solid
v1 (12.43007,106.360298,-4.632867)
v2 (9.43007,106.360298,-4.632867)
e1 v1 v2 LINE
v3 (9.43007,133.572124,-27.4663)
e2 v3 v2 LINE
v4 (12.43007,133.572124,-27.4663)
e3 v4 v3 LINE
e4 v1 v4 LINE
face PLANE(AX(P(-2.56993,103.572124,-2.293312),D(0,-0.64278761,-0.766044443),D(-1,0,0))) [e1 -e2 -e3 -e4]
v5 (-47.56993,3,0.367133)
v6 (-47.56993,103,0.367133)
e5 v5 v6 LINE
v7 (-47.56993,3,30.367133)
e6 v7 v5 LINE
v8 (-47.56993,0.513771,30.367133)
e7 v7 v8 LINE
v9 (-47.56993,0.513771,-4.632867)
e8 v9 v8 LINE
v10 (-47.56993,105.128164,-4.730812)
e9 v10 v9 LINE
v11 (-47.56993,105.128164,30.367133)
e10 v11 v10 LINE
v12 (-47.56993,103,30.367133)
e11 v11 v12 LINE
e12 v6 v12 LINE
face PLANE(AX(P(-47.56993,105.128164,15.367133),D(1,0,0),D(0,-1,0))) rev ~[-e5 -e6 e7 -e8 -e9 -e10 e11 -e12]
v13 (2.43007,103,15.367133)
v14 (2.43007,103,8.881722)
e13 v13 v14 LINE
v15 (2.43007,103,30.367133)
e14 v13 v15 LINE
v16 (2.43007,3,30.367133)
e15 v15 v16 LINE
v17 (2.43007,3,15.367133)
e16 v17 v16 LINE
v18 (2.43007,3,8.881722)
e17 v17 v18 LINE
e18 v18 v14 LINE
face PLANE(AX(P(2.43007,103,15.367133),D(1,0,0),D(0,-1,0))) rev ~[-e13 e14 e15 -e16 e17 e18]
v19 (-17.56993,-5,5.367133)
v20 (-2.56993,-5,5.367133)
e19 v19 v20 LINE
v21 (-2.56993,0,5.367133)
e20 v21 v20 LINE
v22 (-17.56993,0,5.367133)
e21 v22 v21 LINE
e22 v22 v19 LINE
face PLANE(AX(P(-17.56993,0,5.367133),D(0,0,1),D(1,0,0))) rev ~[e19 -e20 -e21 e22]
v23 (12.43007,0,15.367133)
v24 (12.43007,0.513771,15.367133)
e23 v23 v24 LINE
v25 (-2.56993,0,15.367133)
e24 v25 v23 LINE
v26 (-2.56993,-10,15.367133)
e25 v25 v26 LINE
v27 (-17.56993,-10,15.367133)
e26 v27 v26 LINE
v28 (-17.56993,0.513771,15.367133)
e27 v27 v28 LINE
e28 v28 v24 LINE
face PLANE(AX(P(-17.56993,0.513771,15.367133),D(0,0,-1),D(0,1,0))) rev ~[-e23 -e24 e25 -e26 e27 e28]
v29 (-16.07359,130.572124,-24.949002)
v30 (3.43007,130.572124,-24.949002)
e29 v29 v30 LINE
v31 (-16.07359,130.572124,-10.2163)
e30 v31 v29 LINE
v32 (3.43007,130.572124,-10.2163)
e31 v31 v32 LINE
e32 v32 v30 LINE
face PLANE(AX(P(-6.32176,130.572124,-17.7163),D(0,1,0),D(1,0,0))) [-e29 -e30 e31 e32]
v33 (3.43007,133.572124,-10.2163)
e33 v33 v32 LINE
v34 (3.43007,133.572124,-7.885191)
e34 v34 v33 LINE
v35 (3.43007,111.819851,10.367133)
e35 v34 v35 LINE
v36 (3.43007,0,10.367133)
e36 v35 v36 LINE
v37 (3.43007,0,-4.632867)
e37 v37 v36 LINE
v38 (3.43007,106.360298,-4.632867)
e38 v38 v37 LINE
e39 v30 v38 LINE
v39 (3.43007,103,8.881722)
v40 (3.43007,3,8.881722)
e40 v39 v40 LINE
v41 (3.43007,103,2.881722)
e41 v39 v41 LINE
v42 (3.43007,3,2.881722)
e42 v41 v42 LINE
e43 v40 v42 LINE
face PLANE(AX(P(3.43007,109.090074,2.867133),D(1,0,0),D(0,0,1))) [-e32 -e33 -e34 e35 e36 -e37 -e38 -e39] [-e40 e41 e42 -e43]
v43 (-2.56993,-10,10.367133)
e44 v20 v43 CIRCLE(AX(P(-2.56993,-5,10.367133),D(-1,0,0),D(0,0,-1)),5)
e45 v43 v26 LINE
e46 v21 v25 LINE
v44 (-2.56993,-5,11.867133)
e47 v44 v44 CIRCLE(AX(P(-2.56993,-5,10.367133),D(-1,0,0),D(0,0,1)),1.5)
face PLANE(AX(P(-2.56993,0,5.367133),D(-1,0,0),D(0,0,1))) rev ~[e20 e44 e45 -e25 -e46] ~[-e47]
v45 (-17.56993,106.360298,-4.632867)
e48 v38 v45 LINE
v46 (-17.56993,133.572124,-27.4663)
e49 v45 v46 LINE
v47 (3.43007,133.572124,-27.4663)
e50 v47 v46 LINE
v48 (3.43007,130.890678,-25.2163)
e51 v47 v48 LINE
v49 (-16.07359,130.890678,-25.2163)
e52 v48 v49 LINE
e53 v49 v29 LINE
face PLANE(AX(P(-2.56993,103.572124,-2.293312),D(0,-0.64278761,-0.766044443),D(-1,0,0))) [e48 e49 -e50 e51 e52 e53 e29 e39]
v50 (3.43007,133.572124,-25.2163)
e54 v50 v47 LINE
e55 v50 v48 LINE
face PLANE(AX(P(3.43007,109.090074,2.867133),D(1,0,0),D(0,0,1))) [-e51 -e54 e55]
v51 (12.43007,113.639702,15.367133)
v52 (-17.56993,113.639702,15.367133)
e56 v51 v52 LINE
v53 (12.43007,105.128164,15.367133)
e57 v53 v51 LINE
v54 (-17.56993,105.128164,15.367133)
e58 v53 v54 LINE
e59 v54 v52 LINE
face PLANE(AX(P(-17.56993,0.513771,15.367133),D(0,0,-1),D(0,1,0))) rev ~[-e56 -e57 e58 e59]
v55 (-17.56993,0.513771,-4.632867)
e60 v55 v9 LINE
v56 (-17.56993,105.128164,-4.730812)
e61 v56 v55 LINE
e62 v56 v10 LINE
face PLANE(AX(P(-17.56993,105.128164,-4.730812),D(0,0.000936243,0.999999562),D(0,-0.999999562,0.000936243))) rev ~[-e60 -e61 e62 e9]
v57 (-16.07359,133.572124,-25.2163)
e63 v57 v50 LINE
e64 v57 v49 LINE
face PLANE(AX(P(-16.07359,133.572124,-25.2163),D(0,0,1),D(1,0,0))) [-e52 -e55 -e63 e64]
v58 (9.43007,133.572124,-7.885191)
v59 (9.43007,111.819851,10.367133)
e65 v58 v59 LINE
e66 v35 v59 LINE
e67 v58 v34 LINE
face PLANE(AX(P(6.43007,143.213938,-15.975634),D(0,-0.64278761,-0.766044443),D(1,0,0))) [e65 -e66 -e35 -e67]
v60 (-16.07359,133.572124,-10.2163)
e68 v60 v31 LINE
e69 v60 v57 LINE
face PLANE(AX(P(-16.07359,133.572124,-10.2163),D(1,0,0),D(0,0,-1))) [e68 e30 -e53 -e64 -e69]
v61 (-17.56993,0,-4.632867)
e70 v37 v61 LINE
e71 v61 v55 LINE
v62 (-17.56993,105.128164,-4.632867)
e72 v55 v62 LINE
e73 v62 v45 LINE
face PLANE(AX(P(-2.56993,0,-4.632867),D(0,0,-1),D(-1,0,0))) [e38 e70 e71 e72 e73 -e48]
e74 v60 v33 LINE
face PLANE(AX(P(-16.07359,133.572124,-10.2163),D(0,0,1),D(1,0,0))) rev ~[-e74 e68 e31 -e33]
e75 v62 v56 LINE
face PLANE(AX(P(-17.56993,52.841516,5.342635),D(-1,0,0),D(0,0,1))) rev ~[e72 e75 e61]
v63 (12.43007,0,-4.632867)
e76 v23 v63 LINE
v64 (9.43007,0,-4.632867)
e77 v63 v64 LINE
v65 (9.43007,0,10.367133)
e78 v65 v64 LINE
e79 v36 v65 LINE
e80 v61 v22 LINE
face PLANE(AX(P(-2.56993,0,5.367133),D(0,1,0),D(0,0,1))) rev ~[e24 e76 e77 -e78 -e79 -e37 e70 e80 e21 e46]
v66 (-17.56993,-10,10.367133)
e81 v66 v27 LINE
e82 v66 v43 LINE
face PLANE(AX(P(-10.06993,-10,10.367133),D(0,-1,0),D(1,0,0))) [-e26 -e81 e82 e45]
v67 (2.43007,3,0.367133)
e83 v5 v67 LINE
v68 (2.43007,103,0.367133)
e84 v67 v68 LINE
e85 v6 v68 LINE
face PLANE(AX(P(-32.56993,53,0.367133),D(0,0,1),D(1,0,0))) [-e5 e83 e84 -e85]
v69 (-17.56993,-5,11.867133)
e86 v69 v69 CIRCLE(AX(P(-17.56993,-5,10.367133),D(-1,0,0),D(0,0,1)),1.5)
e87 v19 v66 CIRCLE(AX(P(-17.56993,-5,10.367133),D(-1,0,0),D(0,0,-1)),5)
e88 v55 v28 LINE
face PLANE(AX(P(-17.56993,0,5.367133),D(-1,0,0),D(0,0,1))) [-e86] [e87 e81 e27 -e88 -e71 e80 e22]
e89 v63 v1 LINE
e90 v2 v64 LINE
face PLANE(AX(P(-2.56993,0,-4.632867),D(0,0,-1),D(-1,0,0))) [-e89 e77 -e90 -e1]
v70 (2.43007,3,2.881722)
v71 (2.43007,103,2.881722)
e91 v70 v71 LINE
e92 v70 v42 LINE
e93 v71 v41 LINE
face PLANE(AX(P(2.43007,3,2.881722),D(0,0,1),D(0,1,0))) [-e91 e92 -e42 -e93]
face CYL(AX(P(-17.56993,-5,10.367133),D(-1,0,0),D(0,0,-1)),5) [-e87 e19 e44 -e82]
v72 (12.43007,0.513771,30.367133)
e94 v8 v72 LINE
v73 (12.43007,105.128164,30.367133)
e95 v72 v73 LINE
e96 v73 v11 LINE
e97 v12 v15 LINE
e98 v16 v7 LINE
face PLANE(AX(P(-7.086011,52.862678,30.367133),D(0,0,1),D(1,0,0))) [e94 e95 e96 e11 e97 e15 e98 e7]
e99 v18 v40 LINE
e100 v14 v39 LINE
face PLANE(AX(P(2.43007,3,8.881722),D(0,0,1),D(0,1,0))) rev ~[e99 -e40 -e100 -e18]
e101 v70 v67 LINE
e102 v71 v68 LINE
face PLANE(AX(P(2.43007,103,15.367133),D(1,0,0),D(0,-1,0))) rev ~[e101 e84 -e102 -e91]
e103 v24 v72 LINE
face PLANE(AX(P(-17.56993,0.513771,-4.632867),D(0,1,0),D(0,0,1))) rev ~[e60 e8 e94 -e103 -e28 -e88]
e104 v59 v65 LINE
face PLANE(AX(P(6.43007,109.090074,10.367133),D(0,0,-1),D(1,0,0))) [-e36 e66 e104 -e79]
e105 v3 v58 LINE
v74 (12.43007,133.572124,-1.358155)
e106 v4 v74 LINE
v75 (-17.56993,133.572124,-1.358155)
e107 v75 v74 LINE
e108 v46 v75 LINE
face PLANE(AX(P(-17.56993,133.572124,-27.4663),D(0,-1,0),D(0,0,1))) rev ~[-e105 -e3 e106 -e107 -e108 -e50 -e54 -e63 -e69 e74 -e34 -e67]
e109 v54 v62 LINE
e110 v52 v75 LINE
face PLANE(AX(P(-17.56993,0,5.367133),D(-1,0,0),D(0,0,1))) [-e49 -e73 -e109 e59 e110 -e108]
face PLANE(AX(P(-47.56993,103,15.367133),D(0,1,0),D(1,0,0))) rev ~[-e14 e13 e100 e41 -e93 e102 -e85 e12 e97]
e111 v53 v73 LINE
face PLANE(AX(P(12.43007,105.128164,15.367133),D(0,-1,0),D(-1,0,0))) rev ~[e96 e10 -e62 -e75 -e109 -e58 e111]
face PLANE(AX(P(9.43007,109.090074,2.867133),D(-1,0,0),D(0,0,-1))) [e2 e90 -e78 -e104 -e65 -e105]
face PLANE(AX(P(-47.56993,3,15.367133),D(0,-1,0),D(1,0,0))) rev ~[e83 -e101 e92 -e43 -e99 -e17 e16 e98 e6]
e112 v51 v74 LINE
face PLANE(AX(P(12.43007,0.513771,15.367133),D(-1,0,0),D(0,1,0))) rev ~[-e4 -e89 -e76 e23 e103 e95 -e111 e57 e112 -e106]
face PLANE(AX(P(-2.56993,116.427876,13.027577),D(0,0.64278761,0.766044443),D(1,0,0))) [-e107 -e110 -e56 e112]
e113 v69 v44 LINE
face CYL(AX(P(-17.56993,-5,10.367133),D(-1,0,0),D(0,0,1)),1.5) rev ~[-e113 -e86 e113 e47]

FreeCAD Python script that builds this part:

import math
import FreeCAD as App
import Part
import Sketcher
Q = App.Units.Quantity


def add_polygon(sketch, points):
    """Adds a closed chain of lines whose ends are joined by coincident constraints."""
    first, n = sketch.GeometryCount, len(points)
    for a, b in zip(points, points[1:] + points[:1]):
        sketch.addGeometry(Part.LineSegment(App.Vector(*a, 0), App.Vector(*b, 0)), False)
    for i in range(n):
        sketch.addConstraint(Sketcher.Constraint("Coincident", first + i, 2, first + (i + 1) % n, 1))

doc = App.newDocument("Part")
body = doc.addObject("PartDesign::Body", "Body")

# Sketch on XZ plane
sketch1 = doc.addObject("Sketcher::SketchObject", "Sketch")
body.addObject(sketch1)
sketch1.AttachmentSupport = (doc.XZ_Plane, [""])
sketch1.MapMode = "FlatFace"
add_polygon(sketch1, [(-17.56993, -4.632867), (-17.56993, 15.367133), (12.43007, 15.367133), (12.43007, -4.632867)])  # lines 0-3
sketch1.addConstraint([
    Sketcher.Constraint("Vertical", 0),
    Sketcher.Constraint("Horizontal", 1),
    Sketcher.Constraint("Vertical", 2),
    Sketcher.Constraint("Horizontal", 3),
    Sketcher.Constraint("DistanceX", 1, 1, 1, 2, Q("30 mm")),
    Sketcher.Constraint("DistanceY", 0, 1, 0, 2, Q("20 mm")),
    Sketcher.Constraint("DistanceX", 0, 2, -1, 1, Q("17.56993 mm")),
    Sketcher.Constraint("DistanceY", -1, 1, 0, 2, Q("15.367133 mm")),
])

# Sketch on YZ plane
sketch2 = doc.addObject("Sketcher::SketchObject", "Sketch001")
body.addObject(sketch2)
sketch2.AttachmentSupport = (doc.YZ_Plane, [""])
sketch2.MapMode = "FlatFace"
sketch2.AttachmentOffset = App.Placement(App.Vector(0, 0, -2.57), App.Rotation())
sketch2.addGeometry([
    Part.LineSegment(App.Vector(0, 5.367133, 0), App.Vector(110, 5.367133, 0)),
    Part.LineSegment(App.Vector(110, 5.367133, 0), App.Vector(140, -19.805856, 0)),
], False)
sketch2.addConstraint([
    Sketcher.Constraint("Coincident", 0, 2, 1, 1),
    Sketcher.Constraint("Horizontal", 0),
    Sketcher.Constraint("PointOnObject", 0, 1, -2),
    Sketcher.Constraint("DistanceX", 0, 1, 0, 2, Q("110 mm")),
    Sketcher.Constraint("Angle", 1, Q("-40 deg")),
    Sketcher.Constraint("DistanceX", -1, 1, 1, 2, Q("140 mm")),
    Sketcher.Constraint("DistanceY", -1, 1, 0, 1, Q("5.367133 mm")),
])
doc.recompute()

additivepipe = doc.addObject("PartDesign::AdditivePipe", "AdditivePipe")
body.addObject(additivepipe)
additivepipe.Profile = sketch1
additivepipe.Spine = (sketch2, ["Edge1", "Edge2"])
additivepipe.Transition = "Right corner"

# Sketch on an angled plane
sketch3 = doc.addObject("Sketcher::SketchObject", "Sketch002")
body.addObject(sketch3)
sketch3.Placement = App.Placement(App.Vector(0, 91.907853, -77.119845), App.Rotation(App.Vector(1, 0, 0), App.Vector(0, -0.64278761, -0.766044443), App.Vector(0, 0.766044443, -0.64278761), "ZXY"))
add_polygon(sketch3, [(3.43007, -64.818099), (3.43007, -79.818099), (9.43007, -79.818099), (9.43007, -64.818099)])  # lines 0-3
sketch3.addConstraint([
    Sketcher.Constraint("Vertical", 0),
    Sketcher.Constraint("Horizontal", 1),
    Sketcher.Constraint("Vertical", 2),
    Sketcher.Constraint("Horizontal", 3),
    Sketcher.Constraint("DistanceX", 1, 1, 1, 2, Q("6 mm")),
    Sketcher.Constraint("DistanceY", 0, 2, 0, 1, Q("15 mm")),
    Sketcher.Constraint("DistanceY", 0, 2, -1, 1, Q("79.818099 mm")),
    Sketcher.Constraint("DistanceX", -1, 1, 0, 2, Q("3.43007 mm")),
])

# Sketch on YZ plane
sketch4 = doc.addObject("Sketcher::SketchObject", "Sketch003")
body.addObject(sketch4)
sketch4.AttachmentSupport = (doc.YZ_Plane, [""])
sketch4.MapMode = "FlatFace"
sketch4.AttachmentOffset = App.Placement(App.Vector(0, 0, 6.43007), App.Rotation())
sketch4.addGeometry([
    Part.LineSegment(App.Vector(138.393031, -21.720967, 0), App.Vector(109.090074, 2.867133, 0)),
    Part.LineSegment(App.Vector(109.090074, 2.867133, 0), App.Vector(0, 2.867133, 0)),
], False)
sketch4.addConstraint([
    Sketcher.Constraint("Coincident", 0, 2, 1, 1),
    Sketcher.Constraint("Horizontal", 1),
    Sketcher.Constraint("PointOnObject", 1, 2, -2),
    Sketcher.Constraint("Angle", 0, Q("140 deg")),
    Sketcher.Constraint("DistanceY", 0, 1, 0, 2, Q("24.5881 mm")),
    Sketcher.Constraint("DistanceX", 1, 2, 1, 1, Q("109.090074 mm")),
    Sketcher.Constraint("DistanceY", 0, 1, -1, 1, Q("21.720967 mm")),
])
doc.recompute()

subtractivepipe = doc.addObject("PartDesign::SubtractivePipe", "SubtractivePipe")
body.addObject(subtractivepipe)
subtractivepipe.Profile = sketch3
subtractivepipe.Spine = (sketch4, ["Edge1", "Edge2"])
subtractivepipe.Transition = "Right corner"

# Sketch on XY plane
sketch5 = doc.addObject("Sketcher::SketchObject", "Sketch004")
body.addObject(sketch5)
sketch5.AttachmentSupport = (doc.XY_Plane, [""])
sketch5.MapMode = "FlatFace"
sketch5.AttachmentOffset = App.Placement(App.Vector(0, 0, 15.367133), App.Rotation())
add_polygon(sketch5, [(-41.579192, 103), (-41.579192, 3), (2.43007, 3), (2.43007, 103)])  # lines 0-3
sketch5.addConstraint([
    Sketcher.Constraint("Vertical", 0),
    Sketcher.Constraint("Horizontal", 1),
    Sketcher.Constraint("Vertical", 2),
    Sketcher.Constraint("Horizontal", 3),
    Sketcher.Constraint("DistanceY", 0, 2, 0, 1, Q("100 mm")),
    Sketcher.Constraint("DistanceY", -1, 1, 0, 2, Q("3 mm")),
    Sketcher.Constraint("DistanceX", 1, 1, 1, 2, Q("44.009262 mm")),
    Sketcher.Constraint("DistanceX", -1, 1, 1, 2, Q("2.43007 mm")),
])
pocket1 = doc.addObject("PartDesign::Pocket", "Pocket")
body.addObject(pocket1)
pocket1.Profile = sketch5
pocket1.Length = 15

# Sketch on XZ plane
sketch6 = doc.addObject("Sketcher::SketchObject", "Sketch005")
body.addObject(sketch6)
sketch6.AttachmentSupport = (doc.XZ_Plane, [""])
sketch6.MapMode = "FlatFace"
add_polygon(sketch6, [(-17.56993, 15.367133), (-17.56993, 5.367133), (-2.56993, 5.367133), (-2.56993, 15.367133)])  # lines 0-3
sketch6.addConstraint([
    Sketcher.Constraint("Vertical", 0),
    Sketcher.Constraint("Horizontal", 1),
    Sketcher.Constraint("Vertical", 2),
    Sketcher.Constraint("Horizontal", 3),
    Sketcher.Constraint("DistanceX", 1, 1, 1, 2, Q("15 mm")),
    Sketcher.Constraint("DistanceY", 0, 2, 0, 1, Q("10 mm")),
    Sketcher.Constraint("DistanceX", 0, 2, -1, 1, Q("17.56993 mm")),
    Sketcher.Constraint("DistanceY", -1, 1, 0, 2, Q("5.367133 mm")),
])
pad1 = doc.addObject("PartDesign::Pad", "Pad")
body.addObject(pad1)
pad1.Profile = sketch6
pad1.Length = 10

# Sketch on YZ plane
sketch7 = doc.addObject("Sketcher::SketchObject", "Sketch006")
body.addObject(sketch7)
sketch7.AttachmentSupport = (doc.YZ_Plane, [""])
sketch7.MapMode = "FlatFace"
sketch7.AttachmentOffset = App.Placement(App.Vector(0, 0, -17.56993), App.Rotation())
sketch7.addGeometry([
    Part.LineSegment(App.Vector(-5, 5.367133, 0), App.Vector(-10, 5.367133, 0)),
    Part.LineSegment(App.Vector(-10, 5.367133, 0), App.Vector(-10, 10.367133, 0)),
    Part.ArcOfCircle(Part.Circle(App.Vector(-5, 10.367133, 0), App.Vector(0, 0, 1), 5), math.radians(180), math.radians(270)),
], False)
sketch7.addConstraint([
    Sketcher.Constraint("Coincident", 0, 2, 1, 1),
    Sketcher.Constraint("Tangent", 1, 2, 2, 1),
    Sketcher.Constraint("Tangent", 2, 2, 0, 1),
    Sketcher.Constraint("Horizontal", 0),
    Sketcher.Constraint("Vertical", 1),
    Sketcher.Constraint("Radius", 2, Q("5 mm")),
    Sketcher.Constraint("DistanceX", 2, 3, -1, 1, Q("5 mm")),
    Sketcher.Constraint("DistanceY", -1, 1, 2, 3, Q("10.367133 mm")),
])
pocket2 = doc.addObject("PartDesign::Pocket", "Pocket001")
body.addObject(pocket2)
pocket2.Profile = sketch7
pocket2.Length = 15
pocket2.Reversed = True

# Sketch on YZ plane
sketch8 = doc.addObject("Sketcher::SketchObject", "Sketch007")
body.addObject(sketch8)
sketch8.AttachmentSupport = (doc.YZ_Plane, [""])
sketch8.MapMode = "FlatFace"
sketch8.AttachmentOffset = App.Placement(App.Vector(0, 0, -17.56993), App.Rotation())
add_polygon(sketch8, [(133.572124, -27.4663), (133.572124, -1.358155), (146.427876, -12.145412)])  # lines 0-2
sketch8.addConstraint([
    Sketcher.Constraint("Vertical", 0),
    Sketcher.Constraint("Perpendicular", 1, 2),
    Sketcher.Constraint("Angle", 1, Q("-40 deg")),
    Sketcher.Constraint("Distance", 2, Q("20 mm")),
    Sketcher.Constraint("DistanceY", 2, 2, -1, 1, Q("27.4663 mm")),
    Sketcher.Constraint("DistanceX", -1, 1, 0, 2, Q("133.572124 mm")),
])
pocket3 = doc.addObject("PartDesign::Pocket", "Pocket002")
body.addObject(pocket3)
pocket3.Profile = sketch8
pocket3.Length = 30
pocket3.Reversed = True

# Sketch on XZ plane
sketch9 = doc.addObject("Sketcher::SketchObject", "Sketch008")
body.addObject(sketch9)
sketch9.AttachmentSupport = (doc.XZ_Plane, [""])
sketch9.MapMode = "FlatFace"
sketch9.AttachmentOffset = App.Placement(App.Vector(0, 0, -133.572124), App.Rotation())
add_polygon(sketch9, [(-16.07359, -25.2163), (-16.07359, -10.2163), (3.43007, -10.2163), (3.43007, -25.2163)])  # lines 0-3
sketch9.addConstraint([
    Sketcher.Constraint("Vertical", 0),
    Sketcher.Constraint("Horizontal", 1),
    Sketcher.Constraint("Vertical", 2),
    Sketcher.Constraint("Horizontal", 3),
    Sketcher.Constraint("DistanceY", 0, 1, 0, 2, Q("15 mm")),
    Sketcher.Constraint("DistanceX", 1, 1, 1, 2, Q("19.50366 mm")),
    Sketcher.Constraint("DistanceY", 0, 2, -1, 1, Q("10.2163 mm")),
    Sketcher.Constraint("DistanceX", 0, 2, -1, 1, Q("16.07359 mm")),
])
pocket4 = doc.addObject("PartDesign::Pocket", "Pocket003")
body.addObject(pocket4)
pocket4.Profile = sketch9
pocket4.Length = 3
pocket4.Reversed = True

# Sketch on YZ plane
sketch10 = doc.addObject("Sketcher::SketchObject", "Sketch009")
body.addObject(sketch10)
sketch10.AttachmentSupport = (doc.YZ_Plane, [""])
sketch10.MapMode = "FlatFace"
sketch10.AttachmentOffset = App.Placement(App.Vector(0, 0, -17.56993), App.Rotation())
add_polygon(sketch10, [(105.128164, -4.730812), (0.513771, -4.632867), (0.513771, 15.367133), (105.128164, 15.367133)])  # lines 0-3
sketch10.addConstraint([
    Sketcher.Constraint("Vertical", 1),
    Sketcher.Constraint("Horizontal", 2),
    Sketcher.Constraint("Vertical", 3),
    Sketcher.Constraint("DistanceY", 1, 1, 1, 2, Q("20 mm")),
    Sketcher.Constraint("Distance", 0, Q("104.614439 mm")),
    Sketcher.Constraint("DistanceY", 3, 2, 3, 1, Q("20.097945 mm")),
    Sketcher.Constraint("DistanceX", -1, 1, 0, 2, Q("0.513771 mm")),
    Sketcher.Constraint("DistanceY", 3, 2, -1, 1, Q("4.730812 mm")),
])
pad2 = doc.addObject("PartDesign::Pad", "Pad001")
body.addObject(pad2)
pad2.Profile = sketch10
pad2.Length = 30
pad2.Reversed = True

# Sketch on XY plane
sketch11 = doc.addObject("Sketcher::SketchObject", "Sketch010")
body.addObject(sketch11)
sketch11.AttachmentSupport = (doc.XY_Plane, [""])
sketch11.MapMode = "FlatFace"
sketch11.AttachmentOffset = App.Placement(App.Vector(0, 0, 15.367133), App.Rotation())
add_polygon(sketch11, [(-47.56993, 103), (-47.56993, 3), (-17.56993, 3), (-17.56993, 103)])  # lines 0-3
sketch11.addConstraint([
    Sketcher.Constraint("Vertical", 0),
    Sketcher.Constraint("Horizontal", 1),
    Sketcher.Constraint("Vertical", 2),
    Sketcher.Constraint("Horizontal", 3),
    Sketcher.Constraint("DistanceX", 1, 1, 1, 2, Q("30 mm")),
    Sketcher.Constraint("DistanceY", 0, 2, 0, 1, Q("100 mm")),
    Sketcher.Constraint("DistanceY", -1, 1, 0, 2, Q("3 mm")),
    Sketcher.Constraint("DistanceX", 0, 2, -1, 1, Q("47.56993 mm")),
])
pocket5 = doc.addObject("PartDesign::Pocket", "Pocket004")
body.addObject(pocket5)
pocket5.Profile = sketch11
pocket5.Length = 15

# Sketch on XY plane
sketch12 = doc.addObject("Sketcher::SketchObject", "Sketch011")
body.addObject(sketch12)
sketch12.AttachmentSupport = (doc.XY_Plane, [""])
sketch12.MapMode = "FlatFace"
sketch12.AttachmentOffset = App.Placement(App.Vector(0, 0, 15.367133), App.Rotation())
add_polygon(sketch12, [(-47.56993, 105.128164), (-47.56993, 103), (2.43007, 103), (2.43007, 3), (-47.56993, 3), (-47.56993, 0.513771), (12.43007, 0.513771), (12.43007, 105.128164)])  # lines 0-7
sketch12.addConstraint([
    Sketcher.Constraint("Vertical", 0),
    Sketcher.Constraint("Horizontal", 1),
    Sketcher.Constraint("Vertical", 2),
    Sketcher.Constraint("Horizontal", 3),
    Sketcher.Constraint("Vertical", 4),
    Sketcher.Constraint("Horizontal", 5),
    Sketcher.Constraint("Vertical", 6),
    Sketcher.Constraint("Horizontal", 7),
    Sketcher.Constraint("Vertical", 0, 2, 3, 2),
    Sketcher.Constraint("DistanceX", 1, 1, 1, 2, Q("50 mm")),
    Sketcher.Constraint("DistanceX", 5, 1, 5, 2, Q("60 mm")),
    Sketcher.Constraint("DistanceY", 2, 2, 2, 1, Q("100 mm")),
    Sketcher.Constraint("DistanceY", -1, 1, 0, 2, Q("103 mm")),
    Sketcher.Constraint("DistanceY", 4, 2, 4, 1, Q("2.486229 mm")),
    Sketcher.Constraint("DistanceY", 0, 2, 0, 1, Q("2.128164 mm")),
    Sketcher.Constraint("DistanceX", 0, 2, -1, 1, Q("47.56993 mm")),
])
pad3 = doc.addObject("PartDesign::Pad", "Pad002")
body.addObject(pad3)
pad3.Profile = sketch12
pad3.Length = 15

# Sketch on YZ plane
sketch13 = doc.addObject("Sketcher::SketchObject", "Sketch012")
body.addObject(sketch13)
sketch13.AttachmentSupport = (doc.YZ_Plane, [""])
sketch13.MapMode = "FlatFace"
sketch13.AttachmentOffset = App.Placement(App.Vector(0, 0, 2.43007), App.Rotation())
add_polygon(sketch13, [(103, 2.881722), (3, 2.881722), (3, 8.881722), (103, 8.881722)])  # lines 0-3
sketch13.addConstraint([
    Sketcher.Constraint("Horizontal", 0),
    Sketcher.Constraint("Vertical", 1),
    Sketcher.Constraint("Horizontal", 2),
    Sketcher.Constraint("Vertical", 3),
    Sketcher.Constraint("DistanceX", 0, 2, 0, 1, Q("100 mm")),
    Sketcher.Constraint("DistanceY", 1, 1, 1, 2, Q("6 mm")),
    Sketcher.Constraint("DistanceX", -1, 1, 0, 2, Q("3 mm")),
    Sketcher.Constraint("DistanceY", -1, 1, 0, 2, Q("2.881722 mm")),
])
pocket6 = doc.addObject("PartDesign::Pocket", "Pocket005")
body.addObject(pocket6)
pocket6.Profile = sketch13
pocket6.Length = 5
pocket6.Reversed = True

# Sketch on YZ plane
sketch14 = doc.addObject("Sketcher::SketchObject", "Sketch013")
body.addObject(sketch14)
sketch14.AttachmentSupport = (doc.YZ_Plane, [""])
sketch14.MapMode = "FlatFace"
sketch14.AttachmentOffset = App.Placement(App.Vector(0, 0, -17.56993), App.Rotation())
sketch14.addGeometry(Part.Circle(App.Vector(-5, 10.367133, 0), App.Vector(0, 0, 1), 1.5), False)
sketch14.addConstraint([
    Sketcher.Constraint("Diameter", 0, Q("3 mm")),
    Sketcher.Constraint("DistanceX", 0, 3, -1, 1, Q("5 mm")),
    Sketcher.Constraint("DistanceY", -1, 1, 0, 3, Q("10.367133 mm")),
])
pocket7 = doc.addObject("PartDesign::Pocket", "Pocket006")
body.addObject(pocket7)
pocket7.Profile = sketch14
pocket7.Length = 15
pocket7.Reversed = True

doc.recompute()
